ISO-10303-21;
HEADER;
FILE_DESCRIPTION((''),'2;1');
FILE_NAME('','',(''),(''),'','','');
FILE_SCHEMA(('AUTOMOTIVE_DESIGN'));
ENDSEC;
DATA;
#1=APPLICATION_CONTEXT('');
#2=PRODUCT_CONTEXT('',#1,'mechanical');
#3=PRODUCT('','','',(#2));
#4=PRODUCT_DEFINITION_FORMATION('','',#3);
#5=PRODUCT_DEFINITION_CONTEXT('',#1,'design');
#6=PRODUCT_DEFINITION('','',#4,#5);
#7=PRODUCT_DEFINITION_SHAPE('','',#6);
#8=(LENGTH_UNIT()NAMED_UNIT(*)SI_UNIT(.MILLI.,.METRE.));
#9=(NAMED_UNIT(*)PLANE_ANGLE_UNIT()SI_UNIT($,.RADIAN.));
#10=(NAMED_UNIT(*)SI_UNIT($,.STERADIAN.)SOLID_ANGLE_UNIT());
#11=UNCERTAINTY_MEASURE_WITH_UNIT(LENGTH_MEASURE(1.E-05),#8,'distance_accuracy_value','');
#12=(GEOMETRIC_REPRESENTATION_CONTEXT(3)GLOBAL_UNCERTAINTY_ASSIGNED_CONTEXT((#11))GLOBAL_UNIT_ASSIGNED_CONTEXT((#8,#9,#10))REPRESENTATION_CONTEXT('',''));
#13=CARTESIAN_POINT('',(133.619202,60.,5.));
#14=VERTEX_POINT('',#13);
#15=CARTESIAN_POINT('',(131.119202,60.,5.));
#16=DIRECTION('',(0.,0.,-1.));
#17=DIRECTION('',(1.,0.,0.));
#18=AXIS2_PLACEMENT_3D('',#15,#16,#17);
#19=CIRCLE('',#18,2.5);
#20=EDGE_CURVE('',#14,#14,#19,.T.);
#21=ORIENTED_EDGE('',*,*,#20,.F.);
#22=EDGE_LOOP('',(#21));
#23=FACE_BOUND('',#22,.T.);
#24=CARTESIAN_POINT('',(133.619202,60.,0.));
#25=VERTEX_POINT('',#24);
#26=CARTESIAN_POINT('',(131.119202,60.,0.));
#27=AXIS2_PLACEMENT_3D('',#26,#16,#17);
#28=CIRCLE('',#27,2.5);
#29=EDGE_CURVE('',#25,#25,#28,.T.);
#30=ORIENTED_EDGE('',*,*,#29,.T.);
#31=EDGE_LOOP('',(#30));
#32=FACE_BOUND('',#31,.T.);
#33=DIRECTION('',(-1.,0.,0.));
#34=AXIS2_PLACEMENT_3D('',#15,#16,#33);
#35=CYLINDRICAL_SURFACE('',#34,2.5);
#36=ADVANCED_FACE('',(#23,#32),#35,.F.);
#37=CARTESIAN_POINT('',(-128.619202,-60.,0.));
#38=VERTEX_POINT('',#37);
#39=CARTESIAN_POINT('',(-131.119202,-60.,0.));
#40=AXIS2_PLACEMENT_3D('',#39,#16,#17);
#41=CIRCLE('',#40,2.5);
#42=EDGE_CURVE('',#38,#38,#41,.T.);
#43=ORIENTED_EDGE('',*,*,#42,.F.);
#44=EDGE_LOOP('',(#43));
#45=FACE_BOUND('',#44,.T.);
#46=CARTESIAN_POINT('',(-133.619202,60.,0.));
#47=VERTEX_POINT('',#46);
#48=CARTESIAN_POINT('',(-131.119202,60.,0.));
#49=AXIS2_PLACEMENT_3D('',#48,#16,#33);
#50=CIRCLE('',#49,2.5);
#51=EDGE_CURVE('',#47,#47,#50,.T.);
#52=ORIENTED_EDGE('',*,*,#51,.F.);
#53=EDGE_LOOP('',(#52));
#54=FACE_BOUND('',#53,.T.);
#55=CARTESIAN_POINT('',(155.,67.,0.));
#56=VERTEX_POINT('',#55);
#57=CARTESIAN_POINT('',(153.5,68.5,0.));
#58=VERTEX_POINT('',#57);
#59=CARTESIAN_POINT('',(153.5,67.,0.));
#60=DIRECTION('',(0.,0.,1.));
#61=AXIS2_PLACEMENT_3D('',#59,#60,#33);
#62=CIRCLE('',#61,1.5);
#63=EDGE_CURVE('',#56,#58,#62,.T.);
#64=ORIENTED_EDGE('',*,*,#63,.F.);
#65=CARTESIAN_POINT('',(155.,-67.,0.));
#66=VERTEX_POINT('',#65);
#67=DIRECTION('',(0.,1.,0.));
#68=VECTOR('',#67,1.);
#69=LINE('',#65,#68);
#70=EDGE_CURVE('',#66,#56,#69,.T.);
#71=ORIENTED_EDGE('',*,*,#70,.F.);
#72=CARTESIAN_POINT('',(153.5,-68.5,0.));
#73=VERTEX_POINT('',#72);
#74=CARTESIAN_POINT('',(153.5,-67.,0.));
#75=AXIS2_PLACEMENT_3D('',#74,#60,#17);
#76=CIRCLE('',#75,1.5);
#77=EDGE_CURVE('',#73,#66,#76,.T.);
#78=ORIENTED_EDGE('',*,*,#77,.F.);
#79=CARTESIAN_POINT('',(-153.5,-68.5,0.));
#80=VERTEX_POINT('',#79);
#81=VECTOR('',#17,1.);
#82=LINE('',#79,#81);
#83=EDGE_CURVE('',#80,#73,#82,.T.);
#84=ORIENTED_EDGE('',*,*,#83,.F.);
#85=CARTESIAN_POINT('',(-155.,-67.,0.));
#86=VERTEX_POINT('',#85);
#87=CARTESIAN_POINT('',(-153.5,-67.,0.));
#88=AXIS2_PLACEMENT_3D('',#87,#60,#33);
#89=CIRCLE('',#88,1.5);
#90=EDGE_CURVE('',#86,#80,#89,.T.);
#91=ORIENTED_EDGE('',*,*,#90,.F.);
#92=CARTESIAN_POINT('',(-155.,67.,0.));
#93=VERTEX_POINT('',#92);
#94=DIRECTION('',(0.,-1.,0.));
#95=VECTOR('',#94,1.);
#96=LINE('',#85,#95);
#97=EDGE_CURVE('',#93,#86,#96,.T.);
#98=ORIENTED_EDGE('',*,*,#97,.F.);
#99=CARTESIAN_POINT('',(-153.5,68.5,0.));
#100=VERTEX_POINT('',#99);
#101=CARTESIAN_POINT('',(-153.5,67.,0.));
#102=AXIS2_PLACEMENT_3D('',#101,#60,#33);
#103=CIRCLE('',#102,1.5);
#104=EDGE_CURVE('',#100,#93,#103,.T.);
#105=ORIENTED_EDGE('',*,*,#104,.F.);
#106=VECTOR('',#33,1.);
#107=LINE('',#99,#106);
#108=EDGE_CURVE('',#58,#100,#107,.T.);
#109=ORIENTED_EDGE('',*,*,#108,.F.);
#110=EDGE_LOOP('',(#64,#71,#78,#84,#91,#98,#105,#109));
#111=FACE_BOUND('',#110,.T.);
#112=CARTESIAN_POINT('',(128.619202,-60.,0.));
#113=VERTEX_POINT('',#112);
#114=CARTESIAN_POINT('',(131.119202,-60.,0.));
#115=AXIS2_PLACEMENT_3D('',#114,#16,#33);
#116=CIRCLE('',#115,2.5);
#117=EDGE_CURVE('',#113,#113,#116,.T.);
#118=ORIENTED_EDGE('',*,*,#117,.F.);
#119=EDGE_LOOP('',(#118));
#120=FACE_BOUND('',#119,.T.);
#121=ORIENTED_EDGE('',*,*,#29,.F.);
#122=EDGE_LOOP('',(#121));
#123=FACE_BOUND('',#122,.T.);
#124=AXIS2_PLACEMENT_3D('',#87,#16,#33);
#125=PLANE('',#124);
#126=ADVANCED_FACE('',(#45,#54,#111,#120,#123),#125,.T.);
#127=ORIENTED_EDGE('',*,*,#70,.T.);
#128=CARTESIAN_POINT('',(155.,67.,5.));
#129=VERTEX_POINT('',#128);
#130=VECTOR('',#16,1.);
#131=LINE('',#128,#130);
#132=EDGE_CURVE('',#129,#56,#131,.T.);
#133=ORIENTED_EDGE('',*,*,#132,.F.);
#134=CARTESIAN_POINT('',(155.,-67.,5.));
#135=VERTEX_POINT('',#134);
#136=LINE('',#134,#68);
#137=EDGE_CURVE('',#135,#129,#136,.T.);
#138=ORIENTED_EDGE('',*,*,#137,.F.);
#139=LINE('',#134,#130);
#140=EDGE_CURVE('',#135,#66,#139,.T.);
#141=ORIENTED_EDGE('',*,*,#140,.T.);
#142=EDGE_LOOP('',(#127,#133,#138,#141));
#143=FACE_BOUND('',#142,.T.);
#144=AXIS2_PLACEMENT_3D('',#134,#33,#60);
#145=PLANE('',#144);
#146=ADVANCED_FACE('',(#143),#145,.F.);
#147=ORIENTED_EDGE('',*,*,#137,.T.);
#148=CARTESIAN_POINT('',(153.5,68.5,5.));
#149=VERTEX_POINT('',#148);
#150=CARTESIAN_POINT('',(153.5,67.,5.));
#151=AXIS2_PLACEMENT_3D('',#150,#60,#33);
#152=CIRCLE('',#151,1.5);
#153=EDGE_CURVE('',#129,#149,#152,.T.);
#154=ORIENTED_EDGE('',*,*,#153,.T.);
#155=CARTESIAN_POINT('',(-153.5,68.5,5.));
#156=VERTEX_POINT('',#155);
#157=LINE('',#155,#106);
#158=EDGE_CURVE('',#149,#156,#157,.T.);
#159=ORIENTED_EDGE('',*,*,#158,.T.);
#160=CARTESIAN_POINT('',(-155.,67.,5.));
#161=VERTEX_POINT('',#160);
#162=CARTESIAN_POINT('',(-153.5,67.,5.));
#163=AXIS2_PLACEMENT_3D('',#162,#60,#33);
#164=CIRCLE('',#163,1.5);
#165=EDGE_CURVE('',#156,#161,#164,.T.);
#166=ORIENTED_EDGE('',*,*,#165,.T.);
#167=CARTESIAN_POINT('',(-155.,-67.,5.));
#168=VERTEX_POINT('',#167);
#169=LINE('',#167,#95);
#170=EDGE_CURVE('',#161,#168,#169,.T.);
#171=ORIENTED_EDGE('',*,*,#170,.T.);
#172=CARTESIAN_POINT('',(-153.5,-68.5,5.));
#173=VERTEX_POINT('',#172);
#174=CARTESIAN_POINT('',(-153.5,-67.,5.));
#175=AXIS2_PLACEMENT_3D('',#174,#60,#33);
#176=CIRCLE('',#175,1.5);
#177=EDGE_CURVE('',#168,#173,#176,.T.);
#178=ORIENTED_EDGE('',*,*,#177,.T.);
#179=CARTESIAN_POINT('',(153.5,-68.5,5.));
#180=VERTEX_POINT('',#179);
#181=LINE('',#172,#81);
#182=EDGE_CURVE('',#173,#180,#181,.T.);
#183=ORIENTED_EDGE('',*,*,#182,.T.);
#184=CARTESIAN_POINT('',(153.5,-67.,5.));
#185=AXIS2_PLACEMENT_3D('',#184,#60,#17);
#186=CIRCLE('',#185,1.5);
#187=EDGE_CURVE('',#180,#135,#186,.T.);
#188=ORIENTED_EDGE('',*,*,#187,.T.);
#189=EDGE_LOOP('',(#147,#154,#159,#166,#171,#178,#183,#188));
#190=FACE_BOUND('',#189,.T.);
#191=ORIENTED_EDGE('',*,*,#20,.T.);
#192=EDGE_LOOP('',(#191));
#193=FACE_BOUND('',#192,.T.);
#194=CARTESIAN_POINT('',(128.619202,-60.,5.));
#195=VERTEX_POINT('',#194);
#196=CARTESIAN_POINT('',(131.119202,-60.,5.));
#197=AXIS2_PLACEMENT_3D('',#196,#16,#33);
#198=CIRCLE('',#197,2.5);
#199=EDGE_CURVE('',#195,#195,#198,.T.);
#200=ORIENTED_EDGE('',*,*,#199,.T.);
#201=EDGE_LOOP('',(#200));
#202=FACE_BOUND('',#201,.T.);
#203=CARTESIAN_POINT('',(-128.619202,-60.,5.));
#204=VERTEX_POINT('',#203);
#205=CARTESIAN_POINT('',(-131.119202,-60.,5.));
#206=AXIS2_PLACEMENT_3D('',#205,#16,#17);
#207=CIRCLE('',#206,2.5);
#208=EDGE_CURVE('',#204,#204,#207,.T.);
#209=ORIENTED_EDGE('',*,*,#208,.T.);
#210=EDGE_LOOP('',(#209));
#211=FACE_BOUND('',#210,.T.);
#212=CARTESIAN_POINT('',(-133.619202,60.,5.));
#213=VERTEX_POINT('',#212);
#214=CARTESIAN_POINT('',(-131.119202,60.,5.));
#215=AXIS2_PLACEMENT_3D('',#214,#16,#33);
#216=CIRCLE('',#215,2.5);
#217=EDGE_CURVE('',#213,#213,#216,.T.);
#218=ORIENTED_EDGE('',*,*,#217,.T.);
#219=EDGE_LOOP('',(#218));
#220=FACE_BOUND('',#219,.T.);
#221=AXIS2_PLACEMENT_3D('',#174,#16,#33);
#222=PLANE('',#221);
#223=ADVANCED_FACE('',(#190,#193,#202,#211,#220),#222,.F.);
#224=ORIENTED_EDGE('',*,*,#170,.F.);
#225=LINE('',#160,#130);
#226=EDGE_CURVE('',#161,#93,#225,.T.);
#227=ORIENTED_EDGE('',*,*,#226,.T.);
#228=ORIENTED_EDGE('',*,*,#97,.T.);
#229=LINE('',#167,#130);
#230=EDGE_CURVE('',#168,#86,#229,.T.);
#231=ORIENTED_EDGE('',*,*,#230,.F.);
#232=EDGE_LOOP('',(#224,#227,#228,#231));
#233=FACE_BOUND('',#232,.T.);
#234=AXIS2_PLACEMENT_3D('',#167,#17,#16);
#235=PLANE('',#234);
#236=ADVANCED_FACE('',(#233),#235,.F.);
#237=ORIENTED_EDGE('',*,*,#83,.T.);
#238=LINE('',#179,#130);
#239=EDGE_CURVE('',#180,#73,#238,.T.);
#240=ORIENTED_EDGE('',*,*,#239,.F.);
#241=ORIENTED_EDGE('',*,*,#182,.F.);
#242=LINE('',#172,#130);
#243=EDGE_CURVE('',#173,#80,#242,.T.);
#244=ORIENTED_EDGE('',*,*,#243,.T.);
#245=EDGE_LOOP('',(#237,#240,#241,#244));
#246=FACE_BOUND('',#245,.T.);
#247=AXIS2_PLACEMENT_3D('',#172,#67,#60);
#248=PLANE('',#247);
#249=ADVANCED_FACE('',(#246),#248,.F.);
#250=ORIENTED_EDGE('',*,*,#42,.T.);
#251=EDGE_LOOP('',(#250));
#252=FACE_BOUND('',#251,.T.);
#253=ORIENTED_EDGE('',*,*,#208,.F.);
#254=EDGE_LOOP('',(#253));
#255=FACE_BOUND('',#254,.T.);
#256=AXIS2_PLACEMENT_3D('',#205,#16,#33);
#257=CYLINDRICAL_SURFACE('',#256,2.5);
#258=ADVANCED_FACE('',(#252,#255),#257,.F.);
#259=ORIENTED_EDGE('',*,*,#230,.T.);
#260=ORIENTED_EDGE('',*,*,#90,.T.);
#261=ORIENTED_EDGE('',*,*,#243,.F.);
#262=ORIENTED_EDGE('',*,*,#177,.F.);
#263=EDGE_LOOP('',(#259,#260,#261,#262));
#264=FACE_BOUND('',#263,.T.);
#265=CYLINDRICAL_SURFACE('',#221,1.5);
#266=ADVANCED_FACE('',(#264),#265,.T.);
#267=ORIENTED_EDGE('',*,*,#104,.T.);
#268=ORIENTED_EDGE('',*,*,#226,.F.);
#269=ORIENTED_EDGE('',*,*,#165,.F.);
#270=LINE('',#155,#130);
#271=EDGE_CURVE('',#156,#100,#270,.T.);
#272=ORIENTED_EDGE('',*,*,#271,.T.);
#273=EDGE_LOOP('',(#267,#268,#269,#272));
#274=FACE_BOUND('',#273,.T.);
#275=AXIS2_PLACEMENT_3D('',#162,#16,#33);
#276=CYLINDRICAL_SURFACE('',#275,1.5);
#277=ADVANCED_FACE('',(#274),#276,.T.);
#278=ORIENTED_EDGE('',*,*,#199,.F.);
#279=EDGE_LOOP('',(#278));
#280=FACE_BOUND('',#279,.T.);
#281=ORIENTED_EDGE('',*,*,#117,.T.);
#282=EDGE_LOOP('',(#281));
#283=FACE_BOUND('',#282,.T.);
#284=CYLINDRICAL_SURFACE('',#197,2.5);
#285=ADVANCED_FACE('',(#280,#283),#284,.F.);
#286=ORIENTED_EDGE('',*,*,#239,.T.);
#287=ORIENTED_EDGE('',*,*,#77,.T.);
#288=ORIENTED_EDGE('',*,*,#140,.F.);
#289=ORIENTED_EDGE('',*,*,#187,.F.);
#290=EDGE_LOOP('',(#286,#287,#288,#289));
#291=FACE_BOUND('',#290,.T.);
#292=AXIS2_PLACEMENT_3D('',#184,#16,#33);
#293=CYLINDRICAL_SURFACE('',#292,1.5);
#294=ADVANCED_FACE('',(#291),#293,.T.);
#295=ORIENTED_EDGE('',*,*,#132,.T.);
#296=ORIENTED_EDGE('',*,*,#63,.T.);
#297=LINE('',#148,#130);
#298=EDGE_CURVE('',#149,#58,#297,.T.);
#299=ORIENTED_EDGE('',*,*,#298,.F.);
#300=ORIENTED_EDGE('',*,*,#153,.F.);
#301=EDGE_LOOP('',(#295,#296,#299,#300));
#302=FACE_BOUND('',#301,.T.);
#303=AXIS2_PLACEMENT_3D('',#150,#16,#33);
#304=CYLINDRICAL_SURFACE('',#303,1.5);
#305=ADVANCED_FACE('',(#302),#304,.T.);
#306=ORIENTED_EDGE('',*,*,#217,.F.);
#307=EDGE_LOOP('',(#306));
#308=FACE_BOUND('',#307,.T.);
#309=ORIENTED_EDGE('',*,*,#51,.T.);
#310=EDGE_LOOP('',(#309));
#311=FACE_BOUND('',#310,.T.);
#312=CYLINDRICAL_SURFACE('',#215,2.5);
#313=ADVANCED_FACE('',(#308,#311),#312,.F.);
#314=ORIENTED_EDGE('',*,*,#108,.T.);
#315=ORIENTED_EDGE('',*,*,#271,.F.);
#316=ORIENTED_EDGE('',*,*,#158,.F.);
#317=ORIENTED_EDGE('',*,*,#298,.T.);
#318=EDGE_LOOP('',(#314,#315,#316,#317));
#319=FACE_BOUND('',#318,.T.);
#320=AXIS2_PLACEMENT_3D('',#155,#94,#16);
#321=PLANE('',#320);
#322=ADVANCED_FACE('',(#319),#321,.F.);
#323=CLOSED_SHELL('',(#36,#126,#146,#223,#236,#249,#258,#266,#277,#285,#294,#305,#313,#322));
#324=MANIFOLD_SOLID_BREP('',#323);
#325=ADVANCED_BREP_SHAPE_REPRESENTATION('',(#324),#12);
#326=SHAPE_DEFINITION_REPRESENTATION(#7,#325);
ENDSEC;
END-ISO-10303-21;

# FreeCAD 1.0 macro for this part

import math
import FreeCAD as App
import Part
import Sketcher
from FreeCAD import Vector

doc = App.newDocument("Part")
params = doc.addObject("Spreadsheet::Sheet", "Params")
for row, (alias, value) in enumerate([
    ("sketch1_radius", "1.5 mm"),
    ("sketch1_width", "307 mm"),
    ("sketch1_height", "134 mm"),
    ("pad1_length", "5 mm"),
    ("sketch2_diameter", "5 mm"),
    ("pocket1_length", "5 mm"),
], start=1):
    params.set(f"A{row}", alias)
    params.set(f"B{row}", "=" + value)
    params.setAlias(f"B{row}", alias)

body = doc.addObject("PartDesign::Body", "Body")

sketch1 = doc.addObject("Sketcher::SketchObject", "Sketch")
body.addObject(sketch1)
sketch1.AttachmentSupport = (doc.XY_Plane, [""])
sketch1.MapMode = "FlatFace"
sketch1.addGeometry([
    Part.LineSegment(Vector(-153.5, -68.5, 0), Vector(153.5, -68.5, 0)),
    Part.ArcOfCircle(Part.Circle(Vector(153.5, -67, 0), Vector(0, 0, 1), 1.5), math.radians(-90), math.radians(0)),
    Part.LineSegment(Vector(155, -67, 0), Vector(155, 67, 0)),
    Part.ArcOfCircle(Part.Circle(Vector(153.5, 67, 0), Vector(0, 0, 1), 1.5), math.radians(0), math.radians(90)),
    Part.LineSegment(Vector(153.5, 68.5, 0), Vector(-153.5, 68.5, 0)),
    Part.ArcOfCircle(Part.Circle(Vector(-153.5, 67, 0), Vector(0, 0, 1), 1.5), math.radians(90), math.radians(180)),
    Part.LineSegment(Vector(-155, 67, 0), Vector(-155, -67, 0)),
    Part.ArcOfCircle(Part.Circle(Vector(-153.5, -67, 0), Vector(0, 0, 1), 1.5), math.radians(180), math.radians(270)),
], False)
sketch1.addConstraint([
    Sketcher.Constraint("Tangent", 0, 2, 1, 1),
    Sketcher.Constraint("Tangent", 1, 2, 2, 1),
    Sketcher.Constraint("Tangent", 2, 2, 3, 1),
    Sketcher.Constraint("Tangent", 3, 2, 4, 1),
    Sketcher.Constraint("Tangent", 4, 2, 5, 1),
    Sketcher.Constraint("Tangent", 5, 2, 6, 1),
    Sketcher.Constraint("Tangent", 6, 2, 7, 1),
    Sketcher.Constraint("Tangent", 7, 2, 0, 1),
    Sketcher.Constraint("Horizontal", 0),
    Sketcher.Constraint("Vertical", 2),
    Sketcher.Constraint("Horizontal", 4),
    Sketcher.Constraint("Vertical", 6),
    Sketcher.Constraint("Equal", 1, 3),
    Sketcher.Constraint("Equal", 3, 5),
    Sketcher.Constraint("Equal", 5, 7),
    Sketcher.Constraint("Symmetric", 1, 3, 5, 3, -1, 1),
    Sketcher.Constraint("Radius", 1, 1.5),
    Sketcher.Constraint("DistanceX", 0, 1, 0, 2, 307.0),
    Sketcher.Constraint("DistanceY", 2, 1, 2, 2, 134.0),
])
sketch1.setExpression("Constraints[16]", "Params.sketch1_radius")
sketch1.setExpression("Constraints[17]", "Params.sketch1_width")
sketch1.setExpression("Constraints[18]", "Params.sketch1_height")
pad1 = doc.addObject("PartDesign::Pad", "Pad")
body.addObject(pad1)
pad1.Profile = sketch1
pad1.setExpression("Length", "Params.pad1_length")

sketch2 = doc.addObject("Sketcher::SketchObject", "Sketch001")
body.addObject(sketch2)
sketch2.AttachmentSupport = (doc.XY_Plane, [""])
sketch2.MapMode = "FlatFace"
sketch2.addGeometry([
    Part.Circle(Vector(131.1, -60, 0), Vector(0, 0, 1), 2.5),
    Part.Circle(Vector(131.1, 60, 0), Vector(0, 0, 1), 2.5),
    Part.Circle(Vector(-131.1, 60, 0), Vector(0, 0, 1), 2.5),
    Part.Circle(Vector(-131.1, -60, 0), Vector(0, 0, 1), 2.5),
], False)
sketch2.addConstraint([
    Sketcher.Constraint("Equal", 0, 1),
    Sketcher.Constraint("Equal", 1, 2),
    Sketcher.Constraint("Equal", 2, 3),
    Sketcher.Constraint("Symmetric", 0, 3, 2, 3, -1, 1),
    Sketcher.Constraint("Symmetric", 1, 3, 3, 3, -1, 1),
    Sketcher.Constraint("Symmetric", 1, 3, 2, 3, -2),
    Sketcher.Constraint("Diameter", 0, 5.0),
    Sketcher.Constraint("DistanceY", 0, 3, -1, 1, 60.0),
    Sketcher.Constraint("DistanceX", -1, 1, 0, 3, 131.119202),
])
sketch2.setExpression("Constraints[6]", "Params.sketch2_diameter")
pocket1 = doc.addObject("PartDesign::Pocket", "Pocket")
body.addObject(pocket1)
pocket1.Profile = sketch2
pocket1.setExpression("Length", "Params.pocket1_length")
pocket1.Reversed = True

doc.recompute()
